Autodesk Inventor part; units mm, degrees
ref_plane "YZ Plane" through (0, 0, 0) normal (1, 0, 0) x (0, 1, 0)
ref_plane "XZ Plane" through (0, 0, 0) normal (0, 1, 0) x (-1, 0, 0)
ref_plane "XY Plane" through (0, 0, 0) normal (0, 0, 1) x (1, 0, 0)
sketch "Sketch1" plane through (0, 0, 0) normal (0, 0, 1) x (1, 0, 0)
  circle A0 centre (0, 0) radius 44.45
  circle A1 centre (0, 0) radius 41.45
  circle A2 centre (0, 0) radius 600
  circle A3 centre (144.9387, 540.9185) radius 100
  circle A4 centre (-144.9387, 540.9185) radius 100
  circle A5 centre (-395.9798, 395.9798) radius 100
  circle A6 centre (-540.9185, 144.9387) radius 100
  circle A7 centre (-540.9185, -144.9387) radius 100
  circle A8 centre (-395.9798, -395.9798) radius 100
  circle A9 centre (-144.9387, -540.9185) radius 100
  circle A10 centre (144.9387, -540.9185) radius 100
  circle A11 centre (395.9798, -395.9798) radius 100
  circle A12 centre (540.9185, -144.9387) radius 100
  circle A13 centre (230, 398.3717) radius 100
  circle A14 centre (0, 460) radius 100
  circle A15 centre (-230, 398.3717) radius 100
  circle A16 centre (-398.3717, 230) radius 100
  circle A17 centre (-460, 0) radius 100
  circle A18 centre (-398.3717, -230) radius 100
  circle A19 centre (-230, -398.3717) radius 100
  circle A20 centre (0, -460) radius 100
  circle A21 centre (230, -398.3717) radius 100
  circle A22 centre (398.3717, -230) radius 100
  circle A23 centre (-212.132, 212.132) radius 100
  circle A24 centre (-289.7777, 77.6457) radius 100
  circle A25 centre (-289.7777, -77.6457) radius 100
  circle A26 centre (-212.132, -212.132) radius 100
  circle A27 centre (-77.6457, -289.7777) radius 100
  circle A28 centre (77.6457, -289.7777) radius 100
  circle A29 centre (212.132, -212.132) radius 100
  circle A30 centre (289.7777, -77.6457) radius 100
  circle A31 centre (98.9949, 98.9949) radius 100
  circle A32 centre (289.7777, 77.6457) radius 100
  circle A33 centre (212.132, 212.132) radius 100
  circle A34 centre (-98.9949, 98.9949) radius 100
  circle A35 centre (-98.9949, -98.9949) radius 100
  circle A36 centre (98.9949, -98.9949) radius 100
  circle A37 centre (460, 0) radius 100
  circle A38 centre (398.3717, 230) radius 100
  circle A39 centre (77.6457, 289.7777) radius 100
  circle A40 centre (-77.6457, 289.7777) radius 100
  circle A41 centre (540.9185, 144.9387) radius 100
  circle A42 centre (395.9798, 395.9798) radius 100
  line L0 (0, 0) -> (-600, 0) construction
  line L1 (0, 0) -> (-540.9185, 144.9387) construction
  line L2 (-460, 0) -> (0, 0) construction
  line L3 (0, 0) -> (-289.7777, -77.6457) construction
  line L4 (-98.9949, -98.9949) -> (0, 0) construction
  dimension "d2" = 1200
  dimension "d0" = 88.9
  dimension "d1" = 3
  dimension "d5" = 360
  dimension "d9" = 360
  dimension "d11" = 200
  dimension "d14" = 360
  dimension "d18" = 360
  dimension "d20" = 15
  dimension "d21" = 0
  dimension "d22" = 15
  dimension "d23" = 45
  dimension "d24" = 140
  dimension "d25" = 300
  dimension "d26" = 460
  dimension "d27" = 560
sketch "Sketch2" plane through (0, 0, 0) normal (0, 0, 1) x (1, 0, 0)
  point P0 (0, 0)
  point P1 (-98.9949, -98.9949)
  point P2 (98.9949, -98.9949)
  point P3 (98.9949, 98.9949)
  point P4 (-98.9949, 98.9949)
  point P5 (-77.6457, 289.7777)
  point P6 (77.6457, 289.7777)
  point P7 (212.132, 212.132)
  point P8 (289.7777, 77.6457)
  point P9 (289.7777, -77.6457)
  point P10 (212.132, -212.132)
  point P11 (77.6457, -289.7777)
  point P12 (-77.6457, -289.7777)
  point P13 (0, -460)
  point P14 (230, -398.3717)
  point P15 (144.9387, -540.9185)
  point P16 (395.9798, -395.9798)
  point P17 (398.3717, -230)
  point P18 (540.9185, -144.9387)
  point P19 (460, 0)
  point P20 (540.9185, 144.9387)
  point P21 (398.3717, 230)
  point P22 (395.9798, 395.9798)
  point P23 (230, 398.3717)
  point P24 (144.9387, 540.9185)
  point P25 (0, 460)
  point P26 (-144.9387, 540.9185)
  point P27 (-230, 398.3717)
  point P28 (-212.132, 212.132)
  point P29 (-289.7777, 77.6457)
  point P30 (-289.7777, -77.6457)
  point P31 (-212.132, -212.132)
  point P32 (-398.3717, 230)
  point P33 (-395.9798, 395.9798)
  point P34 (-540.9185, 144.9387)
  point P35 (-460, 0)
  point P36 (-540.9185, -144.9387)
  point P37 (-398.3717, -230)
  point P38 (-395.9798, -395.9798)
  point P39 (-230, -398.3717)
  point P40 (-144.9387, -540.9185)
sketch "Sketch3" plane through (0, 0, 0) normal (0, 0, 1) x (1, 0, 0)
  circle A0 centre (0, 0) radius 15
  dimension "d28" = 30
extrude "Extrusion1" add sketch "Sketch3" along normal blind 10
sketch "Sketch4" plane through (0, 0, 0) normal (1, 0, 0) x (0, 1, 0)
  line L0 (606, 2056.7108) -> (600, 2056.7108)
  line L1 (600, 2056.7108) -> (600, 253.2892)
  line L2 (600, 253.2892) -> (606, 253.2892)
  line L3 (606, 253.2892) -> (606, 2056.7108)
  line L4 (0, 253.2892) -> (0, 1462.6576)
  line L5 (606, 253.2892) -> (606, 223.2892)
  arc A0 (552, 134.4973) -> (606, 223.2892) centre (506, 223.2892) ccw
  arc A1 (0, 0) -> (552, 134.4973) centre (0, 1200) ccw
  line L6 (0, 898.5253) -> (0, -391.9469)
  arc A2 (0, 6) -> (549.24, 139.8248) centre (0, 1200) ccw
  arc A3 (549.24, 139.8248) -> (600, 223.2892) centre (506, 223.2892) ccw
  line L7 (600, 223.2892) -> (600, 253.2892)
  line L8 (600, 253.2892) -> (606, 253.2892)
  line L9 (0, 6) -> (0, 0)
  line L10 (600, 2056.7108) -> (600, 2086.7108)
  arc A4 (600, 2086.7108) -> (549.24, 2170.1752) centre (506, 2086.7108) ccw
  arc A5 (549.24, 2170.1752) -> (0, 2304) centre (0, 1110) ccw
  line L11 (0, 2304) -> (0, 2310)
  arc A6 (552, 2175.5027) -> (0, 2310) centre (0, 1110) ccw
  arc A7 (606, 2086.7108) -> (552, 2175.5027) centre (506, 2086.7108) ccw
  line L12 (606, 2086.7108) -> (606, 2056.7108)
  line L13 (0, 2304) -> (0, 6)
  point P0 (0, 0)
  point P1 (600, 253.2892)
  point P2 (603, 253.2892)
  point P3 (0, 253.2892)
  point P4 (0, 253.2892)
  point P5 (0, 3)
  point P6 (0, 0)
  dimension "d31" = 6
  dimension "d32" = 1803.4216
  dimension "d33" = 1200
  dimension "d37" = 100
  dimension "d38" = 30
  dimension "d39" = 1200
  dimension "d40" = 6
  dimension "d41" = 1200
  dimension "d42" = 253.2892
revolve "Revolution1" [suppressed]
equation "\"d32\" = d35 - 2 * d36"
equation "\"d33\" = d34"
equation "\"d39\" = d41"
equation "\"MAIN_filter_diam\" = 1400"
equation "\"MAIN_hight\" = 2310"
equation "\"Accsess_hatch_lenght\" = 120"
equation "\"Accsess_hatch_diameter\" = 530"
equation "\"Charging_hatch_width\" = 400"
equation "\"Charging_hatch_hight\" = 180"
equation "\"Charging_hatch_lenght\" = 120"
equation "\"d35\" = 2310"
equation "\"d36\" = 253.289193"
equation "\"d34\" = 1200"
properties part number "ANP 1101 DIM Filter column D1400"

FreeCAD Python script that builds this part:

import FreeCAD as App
import Part
import Sketcher
from FreeCAD import Vector

doc = App.newDocument("Part")
body = doc.addObject("PartDesign::Body", "Body")

# Sketch on XY plane
sketch1 = body.newObject("Sketcher::SketchObject", "Sketch")
sketch1.AttachmentSupport = (doc.getObject("XY_Plane"), [""])
sketch1.MapMode = "FlatFace"
sketch1.addGeometry(Part.Circle(Vector(0, 0, 0), Vector(0, 0, 1), 15), False)
sketch1.addConstraint(Sketcher.Constraint("Coincident", 0, 3, -1, 1))
sketch1.addConstraint(Sketcher.Constraint("Diameter", 0, 30.0))
pad1 = body.newObject("PartDesign::Pad", "Pad")
pad1.Profile = sketch1
pad1.Length = 10

doc.recompute()
